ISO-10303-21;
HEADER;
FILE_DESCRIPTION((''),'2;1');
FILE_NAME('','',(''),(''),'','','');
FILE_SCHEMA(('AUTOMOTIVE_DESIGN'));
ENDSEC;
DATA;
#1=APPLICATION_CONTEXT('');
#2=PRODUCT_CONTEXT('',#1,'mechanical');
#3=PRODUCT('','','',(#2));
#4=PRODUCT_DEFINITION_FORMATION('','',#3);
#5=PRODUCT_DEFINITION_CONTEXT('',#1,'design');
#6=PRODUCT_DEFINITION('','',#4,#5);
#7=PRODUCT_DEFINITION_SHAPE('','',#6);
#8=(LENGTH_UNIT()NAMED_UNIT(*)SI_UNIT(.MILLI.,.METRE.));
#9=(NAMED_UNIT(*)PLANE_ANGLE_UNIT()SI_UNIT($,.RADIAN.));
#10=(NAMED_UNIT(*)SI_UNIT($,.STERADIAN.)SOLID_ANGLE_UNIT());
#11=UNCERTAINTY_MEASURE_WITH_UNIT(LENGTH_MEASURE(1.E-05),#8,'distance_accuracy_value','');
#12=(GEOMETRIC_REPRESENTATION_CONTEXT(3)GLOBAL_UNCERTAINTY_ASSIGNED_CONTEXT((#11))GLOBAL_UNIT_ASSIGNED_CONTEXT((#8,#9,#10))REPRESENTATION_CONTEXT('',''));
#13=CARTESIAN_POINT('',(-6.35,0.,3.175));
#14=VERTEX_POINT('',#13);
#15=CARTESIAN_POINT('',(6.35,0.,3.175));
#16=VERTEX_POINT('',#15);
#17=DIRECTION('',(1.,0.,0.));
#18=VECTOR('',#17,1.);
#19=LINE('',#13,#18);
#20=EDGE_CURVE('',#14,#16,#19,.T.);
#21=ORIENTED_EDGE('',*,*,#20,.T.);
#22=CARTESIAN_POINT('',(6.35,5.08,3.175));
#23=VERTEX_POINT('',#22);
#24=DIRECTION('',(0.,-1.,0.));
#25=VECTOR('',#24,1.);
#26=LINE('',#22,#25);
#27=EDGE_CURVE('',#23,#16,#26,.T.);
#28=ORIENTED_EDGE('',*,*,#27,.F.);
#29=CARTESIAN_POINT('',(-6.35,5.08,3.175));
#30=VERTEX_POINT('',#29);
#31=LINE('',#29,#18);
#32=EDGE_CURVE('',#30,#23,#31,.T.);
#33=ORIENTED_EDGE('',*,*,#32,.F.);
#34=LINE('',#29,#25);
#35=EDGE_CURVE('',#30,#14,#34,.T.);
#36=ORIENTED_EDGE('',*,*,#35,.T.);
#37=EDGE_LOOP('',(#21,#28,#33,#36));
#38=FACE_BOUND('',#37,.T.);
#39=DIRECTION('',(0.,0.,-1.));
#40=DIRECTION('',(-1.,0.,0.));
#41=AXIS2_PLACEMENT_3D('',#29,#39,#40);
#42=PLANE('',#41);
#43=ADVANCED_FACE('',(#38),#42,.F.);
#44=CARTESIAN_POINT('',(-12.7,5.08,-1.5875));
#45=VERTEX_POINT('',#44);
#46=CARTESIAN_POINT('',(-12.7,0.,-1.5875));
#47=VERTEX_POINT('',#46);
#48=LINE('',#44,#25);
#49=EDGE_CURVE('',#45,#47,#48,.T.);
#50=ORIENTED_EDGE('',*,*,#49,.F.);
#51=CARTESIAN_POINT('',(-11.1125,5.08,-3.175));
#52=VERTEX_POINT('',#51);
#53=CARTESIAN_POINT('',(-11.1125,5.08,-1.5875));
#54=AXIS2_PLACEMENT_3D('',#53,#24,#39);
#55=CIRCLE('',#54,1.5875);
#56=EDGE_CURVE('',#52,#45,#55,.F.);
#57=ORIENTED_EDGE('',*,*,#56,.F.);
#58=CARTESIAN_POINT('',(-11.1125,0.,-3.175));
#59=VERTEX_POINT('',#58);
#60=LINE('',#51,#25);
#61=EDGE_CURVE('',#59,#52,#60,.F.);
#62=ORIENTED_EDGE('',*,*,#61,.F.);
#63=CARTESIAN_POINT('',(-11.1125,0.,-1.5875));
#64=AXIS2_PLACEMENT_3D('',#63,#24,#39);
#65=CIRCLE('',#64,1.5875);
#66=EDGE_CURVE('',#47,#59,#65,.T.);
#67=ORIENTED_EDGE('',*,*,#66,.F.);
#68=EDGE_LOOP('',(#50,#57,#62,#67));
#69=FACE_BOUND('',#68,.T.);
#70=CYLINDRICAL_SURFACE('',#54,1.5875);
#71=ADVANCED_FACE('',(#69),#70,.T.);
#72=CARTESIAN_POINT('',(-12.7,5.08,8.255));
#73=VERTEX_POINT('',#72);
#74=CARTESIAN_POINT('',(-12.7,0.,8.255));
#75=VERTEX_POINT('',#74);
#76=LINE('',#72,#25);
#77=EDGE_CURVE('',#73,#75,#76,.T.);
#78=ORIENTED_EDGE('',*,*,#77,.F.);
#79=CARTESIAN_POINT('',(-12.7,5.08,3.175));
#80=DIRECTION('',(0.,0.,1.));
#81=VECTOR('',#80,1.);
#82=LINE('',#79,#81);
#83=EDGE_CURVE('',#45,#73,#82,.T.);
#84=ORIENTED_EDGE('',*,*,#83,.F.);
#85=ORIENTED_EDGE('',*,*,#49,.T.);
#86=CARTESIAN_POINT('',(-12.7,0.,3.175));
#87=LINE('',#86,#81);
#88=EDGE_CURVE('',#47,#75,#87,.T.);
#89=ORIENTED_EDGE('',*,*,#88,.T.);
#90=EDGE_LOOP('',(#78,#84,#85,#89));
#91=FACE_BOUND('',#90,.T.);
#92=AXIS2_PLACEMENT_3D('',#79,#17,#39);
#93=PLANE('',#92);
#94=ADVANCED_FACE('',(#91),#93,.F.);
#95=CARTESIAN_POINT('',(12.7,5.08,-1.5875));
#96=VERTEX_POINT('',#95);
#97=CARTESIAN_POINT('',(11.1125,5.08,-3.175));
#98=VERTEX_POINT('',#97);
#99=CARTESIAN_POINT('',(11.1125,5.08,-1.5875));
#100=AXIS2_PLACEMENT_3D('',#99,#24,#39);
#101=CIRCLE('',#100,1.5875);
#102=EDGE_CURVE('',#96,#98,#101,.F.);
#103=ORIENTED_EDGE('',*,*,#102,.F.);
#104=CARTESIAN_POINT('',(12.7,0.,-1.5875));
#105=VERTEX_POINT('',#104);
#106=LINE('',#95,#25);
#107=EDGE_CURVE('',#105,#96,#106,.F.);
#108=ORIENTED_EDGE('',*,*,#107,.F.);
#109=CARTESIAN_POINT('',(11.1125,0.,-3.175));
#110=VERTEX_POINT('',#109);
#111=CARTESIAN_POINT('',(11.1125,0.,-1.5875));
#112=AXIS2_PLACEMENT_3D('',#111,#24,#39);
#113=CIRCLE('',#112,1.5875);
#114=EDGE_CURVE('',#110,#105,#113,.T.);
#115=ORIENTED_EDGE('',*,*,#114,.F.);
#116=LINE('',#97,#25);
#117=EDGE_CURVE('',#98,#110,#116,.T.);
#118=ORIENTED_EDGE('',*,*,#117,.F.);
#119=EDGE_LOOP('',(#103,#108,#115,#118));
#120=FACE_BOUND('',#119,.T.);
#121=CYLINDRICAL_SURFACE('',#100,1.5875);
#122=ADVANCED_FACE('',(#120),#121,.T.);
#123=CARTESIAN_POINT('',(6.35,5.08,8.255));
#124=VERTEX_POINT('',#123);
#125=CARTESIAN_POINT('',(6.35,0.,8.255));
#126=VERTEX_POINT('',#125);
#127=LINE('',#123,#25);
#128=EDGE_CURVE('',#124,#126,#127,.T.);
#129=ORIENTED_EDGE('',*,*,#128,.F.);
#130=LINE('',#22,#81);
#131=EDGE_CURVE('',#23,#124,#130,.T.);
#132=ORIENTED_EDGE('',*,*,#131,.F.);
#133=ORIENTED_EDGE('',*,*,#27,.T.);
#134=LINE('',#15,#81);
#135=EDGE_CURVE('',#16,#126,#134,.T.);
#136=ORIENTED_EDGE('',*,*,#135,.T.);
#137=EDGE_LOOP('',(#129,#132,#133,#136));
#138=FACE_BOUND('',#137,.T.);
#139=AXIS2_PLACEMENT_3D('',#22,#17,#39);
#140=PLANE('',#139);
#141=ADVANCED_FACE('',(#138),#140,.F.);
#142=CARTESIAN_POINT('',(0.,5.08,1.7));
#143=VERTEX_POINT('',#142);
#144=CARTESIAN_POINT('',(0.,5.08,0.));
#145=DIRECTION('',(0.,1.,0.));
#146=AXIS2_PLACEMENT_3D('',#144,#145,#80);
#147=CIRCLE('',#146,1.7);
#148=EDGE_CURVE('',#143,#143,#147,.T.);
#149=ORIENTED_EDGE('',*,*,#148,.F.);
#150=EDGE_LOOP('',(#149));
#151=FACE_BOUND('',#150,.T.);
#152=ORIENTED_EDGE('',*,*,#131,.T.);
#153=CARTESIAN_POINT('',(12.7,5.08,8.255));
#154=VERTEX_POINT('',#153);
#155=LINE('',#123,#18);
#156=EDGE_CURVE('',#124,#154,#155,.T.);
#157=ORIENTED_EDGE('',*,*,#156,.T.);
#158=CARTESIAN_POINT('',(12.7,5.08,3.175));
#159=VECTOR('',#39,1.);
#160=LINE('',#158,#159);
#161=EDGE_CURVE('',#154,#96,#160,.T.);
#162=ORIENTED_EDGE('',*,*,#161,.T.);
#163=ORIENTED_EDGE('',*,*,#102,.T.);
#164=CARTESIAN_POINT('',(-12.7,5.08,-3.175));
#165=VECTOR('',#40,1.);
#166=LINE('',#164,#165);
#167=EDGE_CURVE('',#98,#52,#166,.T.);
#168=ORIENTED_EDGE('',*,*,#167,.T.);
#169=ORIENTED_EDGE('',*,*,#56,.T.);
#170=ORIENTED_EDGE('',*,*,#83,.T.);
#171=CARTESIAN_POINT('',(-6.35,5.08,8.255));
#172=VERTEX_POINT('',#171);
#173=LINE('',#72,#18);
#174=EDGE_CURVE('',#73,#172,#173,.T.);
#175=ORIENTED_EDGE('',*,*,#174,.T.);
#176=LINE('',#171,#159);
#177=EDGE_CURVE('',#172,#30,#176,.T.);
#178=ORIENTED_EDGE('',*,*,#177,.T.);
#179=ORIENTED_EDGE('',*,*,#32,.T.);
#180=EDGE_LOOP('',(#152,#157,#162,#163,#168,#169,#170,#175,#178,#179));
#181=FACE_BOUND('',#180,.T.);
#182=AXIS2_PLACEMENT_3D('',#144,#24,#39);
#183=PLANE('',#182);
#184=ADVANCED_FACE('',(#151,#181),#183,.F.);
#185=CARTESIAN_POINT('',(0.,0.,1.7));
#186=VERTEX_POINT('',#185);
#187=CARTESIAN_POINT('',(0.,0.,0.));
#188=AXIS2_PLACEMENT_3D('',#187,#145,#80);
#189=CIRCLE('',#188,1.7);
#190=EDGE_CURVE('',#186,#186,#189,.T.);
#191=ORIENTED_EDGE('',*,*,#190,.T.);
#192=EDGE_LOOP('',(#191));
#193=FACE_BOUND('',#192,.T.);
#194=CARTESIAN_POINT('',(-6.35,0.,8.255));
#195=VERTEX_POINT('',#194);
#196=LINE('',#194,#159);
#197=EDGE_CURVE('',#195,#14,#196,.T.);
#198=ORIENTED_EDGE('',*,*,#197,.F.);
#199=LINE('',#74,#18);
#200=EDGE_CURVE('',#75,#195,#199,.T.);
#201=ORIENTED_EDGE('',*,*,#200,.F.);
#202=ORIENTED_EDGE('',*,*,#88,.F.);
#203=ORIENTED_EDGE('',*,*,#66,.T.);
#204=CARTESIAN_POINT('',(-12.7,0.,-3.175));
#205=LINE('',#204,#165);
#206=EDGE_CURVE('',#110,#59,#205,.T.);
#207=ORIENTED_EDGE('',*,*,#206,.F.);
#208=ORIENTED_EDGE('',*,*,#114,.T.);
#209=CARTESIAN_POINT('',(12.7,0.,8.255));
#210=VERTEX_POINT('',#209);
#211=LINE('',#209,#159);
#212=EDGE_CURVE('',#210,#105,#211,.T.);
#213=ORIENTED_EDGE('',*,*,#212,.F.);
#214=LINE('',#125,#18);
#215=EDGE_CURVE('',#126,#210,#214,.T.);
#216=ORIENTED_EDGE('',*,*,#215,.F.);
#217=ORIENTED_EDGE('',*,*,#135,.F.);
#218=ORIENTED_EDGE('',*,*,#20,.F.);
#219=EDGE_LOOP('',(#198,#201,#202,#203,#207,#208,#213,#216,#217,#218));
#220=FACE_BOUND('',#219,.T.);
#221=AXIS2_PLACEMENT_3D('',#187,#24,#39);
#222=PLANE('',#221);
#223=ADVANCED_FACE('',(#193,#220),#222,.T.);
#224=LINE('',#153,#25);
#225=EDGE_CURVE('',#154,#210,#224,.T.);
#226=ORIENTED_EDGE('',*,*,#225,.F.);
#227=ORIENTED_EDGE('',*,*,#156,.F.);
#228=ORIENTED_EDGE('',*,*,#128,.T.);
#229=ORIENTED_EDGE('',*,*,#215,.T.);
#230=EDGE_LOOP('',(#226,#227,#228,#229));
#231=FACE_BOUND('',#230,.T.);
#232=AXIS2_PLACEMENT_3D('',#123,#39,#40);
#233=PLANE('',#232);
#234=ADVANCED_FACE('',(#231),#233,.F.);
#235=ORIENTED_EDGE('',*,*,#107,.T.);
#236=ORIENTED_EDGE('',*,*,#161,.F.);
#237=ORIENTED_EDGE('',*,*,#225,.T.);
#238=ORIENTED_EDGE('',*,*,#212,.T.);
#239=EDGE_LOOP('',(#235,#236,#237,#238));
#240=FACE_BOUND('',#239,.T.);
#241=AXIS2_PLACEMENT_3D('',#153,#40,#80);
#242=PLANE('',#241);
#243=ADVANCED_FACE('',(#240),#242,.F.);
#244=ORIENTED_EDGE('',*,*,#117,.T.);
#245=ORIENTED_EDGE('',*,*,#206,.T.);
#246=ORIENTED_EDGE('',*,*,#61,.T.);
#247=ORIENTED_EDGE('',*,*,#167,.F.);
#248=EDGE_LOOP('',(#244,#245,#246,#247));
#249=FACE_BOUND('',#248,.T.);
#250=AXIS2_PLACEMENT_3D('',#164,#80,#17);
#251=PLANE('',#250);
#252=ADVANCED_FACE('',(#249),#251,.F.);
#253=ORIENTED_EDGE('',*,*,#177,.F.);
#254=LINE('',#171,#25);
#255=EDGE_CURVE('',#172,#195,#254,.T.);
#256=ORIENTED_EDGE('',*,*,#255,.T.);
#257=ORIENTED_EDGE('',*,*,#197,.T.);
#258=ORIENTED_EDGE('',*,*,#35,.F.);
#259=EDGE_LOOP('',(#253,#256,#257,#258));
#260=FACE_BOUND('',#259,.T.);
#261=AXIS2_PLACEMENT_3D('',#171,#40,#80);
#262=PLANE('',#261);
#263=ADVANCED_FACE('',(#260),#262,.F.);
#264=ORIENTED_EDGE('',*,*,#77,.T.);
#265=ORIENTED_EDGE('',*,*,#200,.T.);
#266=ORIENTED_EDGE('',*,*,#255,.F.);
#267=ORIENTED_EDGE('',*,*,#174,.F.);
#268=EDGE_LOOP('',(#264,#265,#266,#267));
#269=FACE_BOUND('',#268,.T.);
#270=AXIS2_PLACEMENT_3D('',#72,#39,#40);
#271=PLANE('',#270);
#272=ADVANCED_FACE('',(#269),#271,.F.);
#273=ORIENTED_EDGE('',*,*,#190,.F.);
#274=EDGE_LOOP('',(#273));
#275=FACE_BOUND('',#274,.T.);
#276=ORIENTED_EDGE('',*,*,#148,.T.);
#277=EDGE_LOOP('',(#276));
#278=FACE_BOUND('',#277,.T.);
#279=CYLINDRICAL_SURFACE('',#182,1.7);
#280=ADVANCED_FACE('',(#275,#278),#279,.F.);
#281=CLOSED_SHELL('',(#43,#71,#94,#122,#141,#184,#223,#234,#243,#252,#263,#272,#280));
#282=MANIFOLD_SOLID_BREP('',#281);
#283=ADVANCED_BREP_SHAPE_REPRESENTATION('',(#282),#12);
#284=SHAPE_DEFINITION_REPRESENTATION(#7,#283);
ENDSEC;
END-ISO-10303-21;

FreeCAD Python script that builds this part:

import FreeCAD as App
import Part
import Sketcher

V = App.Vector
Q = App.Units.Quantity


def edges_at(feature, points):
    """Names of the edges that pass closest to the given points."""
    edges = feature.Shape.Edges
    near = lambda p: min(range(len(edges)), key=lambda i: edges[i].distToShape(Part.Vertex(*p))[0])
    return sorted({f"Edge{near(p) + 1}" for p in points})

doc = App.newDocument("Part")
body = doc.addObject("PartDesign::Body", "Body")

sketch1 = body.newObject("Sketcher::SketchObject", "Sketch")
sketch1.AttachmentSupport = (doc.getObject("XZ_Plane"), [""])
sketch1.MapMode = "FlatFace"
sketch1.addGeometry(Part.LineSegment(V(-12.7, 8.255, 0), V(-6.35, 8.255, 0)), False)
sketch1.addGeometry(Part.LineSegment(V(-6.35, 8.255, 0), V(-6.35, 3.175, 0)), False)
sketch1.addGeometry(Part.LineSegment(V(-6.35, 3.175, 0), V(6.35, 3.175, 0)), False)
sketch1.addGeometry(Part.LineSegment(V(6.35, 3.175, 0), V(6.35, 8.255, 0)), False)
sketch1.addGeometry(Part.LineSegment(V(6.35, 8.255, 0), V(12.7, 8.255, 0)), False)
sketch1.addGeometry(Part.LineSegment(V(12.7, 8.255, 0), V(12.7, -3.175, 0)), False)
sketch1.addGeometry(Part.LineSegment(V(12.7, -3.175, 0), V(-12.7, -3.175, 0)), False)
sketch1.addGeometry(Part.LineSegment(V(-12.7, -3.175, 0), V(-12.7, 8.255, 0)), False)
sketch1.addGeometry(Part.Circle(V(0, 0, 0), V(0, 0, 1), 1.7), False)
sketch1.addConstraint(Sketcher.Constraint("Coincident", 0, 2, 1, 1))
sketch1.addConstraint(Sketcher.Constraint("Coincident", 1, 2, 2, 1))
sketch1.addConstraint(Sketcher.Constraint("Coincident", 2, 2, 3, 1))
sketch1.addConstraint(Sketcher.Constraint("Coincident", 3, 2, 4, 1))
sketch1.addConstraint(Sketcher.Constraint("Coincident", 4, 2, 5, 1))
sketch1.addConstraint(Sketcher.Constraint("Coincident", 5, 2, 6, 1))
sketch1.addConstraint(Sketcher.Constraint("Coincident", 6, 2, 7, 1))
sketch1.addConstraint(Sketcher.Constraint("Coincident", 7, 2, 0, 1))
sketch1.addConstraint(Sketcher.Constraint("Horizontal", 0))
sketch1.addConstraint(Sketcher.Constraint("Vertical", 1))
sketch1.addConstraint(Sketcher.Constraint("Horizontal", 2))
sketch1.addConstraint(Sketcher.Constraint("Vertical", 3))
sketch1.addConstraint(Sketcher.Constraint("Horizontal", 4))
sketch1.addConstraint(Sketcher.Constraint("Vertical", 5))
sketch1.addConstraint(Sketcher.Constraint("Horizontal", 6))
sketch1.addConstraint(Sketcher.Constraint("Vertical", 7))
sketch1.addConstraint(Sketcher.Constraint("Coincident", 8, 3, -1, 1))
sketch1.addConstraint(Sketcher.Constraint("Symmetric", 0, 2, 3, 2, -2))
sketch1.addConstraint(Sketcher.Constraint("Equal", 0, 4))
sketch1.addConstraint(Sketcher.Constraint("DistanceX", 6, 2, 6, 1, Q("1 in")))
sketch1.addConstraint(Sketcher.Constraint("DistanceX", 2, 1, 2, 2, Q("0.5 in")))
sketch1.addConstraint(Sketcher.Constraint("DistanceY", 1, 2, 1, 1, Q("0.2 in")))
sketch1.addConstraint(Sketcher.Constraint("DistanceY", 5, 2, 5, 1, Q("0.45 in")))
sketch1.addConstraint(Sketcher.Constraint("Diameter", 8, 3.4))
sketch1.addConstraint(Sketcher.Constraint("DistanceY", -1, 1, 0, 2, Q("0.325 in")))
pad1 = body.newObject("PartDesign::Pad", "Pad")
pad1.Profile = sketch1
pad1.Length = Q("0.2 in")
pad1.Reversed = True
doc.recompute()

fillet = body.newObject("PartDesign::Fillet", "Fillet")
fillet.Base = (pad1, edges_at(pad1, [(-12.7, 2.54, -3.175), (12.7, 2.54, -3.175)]))
fillet.Radius = Q("0.0625 in")

doc.recompute()
